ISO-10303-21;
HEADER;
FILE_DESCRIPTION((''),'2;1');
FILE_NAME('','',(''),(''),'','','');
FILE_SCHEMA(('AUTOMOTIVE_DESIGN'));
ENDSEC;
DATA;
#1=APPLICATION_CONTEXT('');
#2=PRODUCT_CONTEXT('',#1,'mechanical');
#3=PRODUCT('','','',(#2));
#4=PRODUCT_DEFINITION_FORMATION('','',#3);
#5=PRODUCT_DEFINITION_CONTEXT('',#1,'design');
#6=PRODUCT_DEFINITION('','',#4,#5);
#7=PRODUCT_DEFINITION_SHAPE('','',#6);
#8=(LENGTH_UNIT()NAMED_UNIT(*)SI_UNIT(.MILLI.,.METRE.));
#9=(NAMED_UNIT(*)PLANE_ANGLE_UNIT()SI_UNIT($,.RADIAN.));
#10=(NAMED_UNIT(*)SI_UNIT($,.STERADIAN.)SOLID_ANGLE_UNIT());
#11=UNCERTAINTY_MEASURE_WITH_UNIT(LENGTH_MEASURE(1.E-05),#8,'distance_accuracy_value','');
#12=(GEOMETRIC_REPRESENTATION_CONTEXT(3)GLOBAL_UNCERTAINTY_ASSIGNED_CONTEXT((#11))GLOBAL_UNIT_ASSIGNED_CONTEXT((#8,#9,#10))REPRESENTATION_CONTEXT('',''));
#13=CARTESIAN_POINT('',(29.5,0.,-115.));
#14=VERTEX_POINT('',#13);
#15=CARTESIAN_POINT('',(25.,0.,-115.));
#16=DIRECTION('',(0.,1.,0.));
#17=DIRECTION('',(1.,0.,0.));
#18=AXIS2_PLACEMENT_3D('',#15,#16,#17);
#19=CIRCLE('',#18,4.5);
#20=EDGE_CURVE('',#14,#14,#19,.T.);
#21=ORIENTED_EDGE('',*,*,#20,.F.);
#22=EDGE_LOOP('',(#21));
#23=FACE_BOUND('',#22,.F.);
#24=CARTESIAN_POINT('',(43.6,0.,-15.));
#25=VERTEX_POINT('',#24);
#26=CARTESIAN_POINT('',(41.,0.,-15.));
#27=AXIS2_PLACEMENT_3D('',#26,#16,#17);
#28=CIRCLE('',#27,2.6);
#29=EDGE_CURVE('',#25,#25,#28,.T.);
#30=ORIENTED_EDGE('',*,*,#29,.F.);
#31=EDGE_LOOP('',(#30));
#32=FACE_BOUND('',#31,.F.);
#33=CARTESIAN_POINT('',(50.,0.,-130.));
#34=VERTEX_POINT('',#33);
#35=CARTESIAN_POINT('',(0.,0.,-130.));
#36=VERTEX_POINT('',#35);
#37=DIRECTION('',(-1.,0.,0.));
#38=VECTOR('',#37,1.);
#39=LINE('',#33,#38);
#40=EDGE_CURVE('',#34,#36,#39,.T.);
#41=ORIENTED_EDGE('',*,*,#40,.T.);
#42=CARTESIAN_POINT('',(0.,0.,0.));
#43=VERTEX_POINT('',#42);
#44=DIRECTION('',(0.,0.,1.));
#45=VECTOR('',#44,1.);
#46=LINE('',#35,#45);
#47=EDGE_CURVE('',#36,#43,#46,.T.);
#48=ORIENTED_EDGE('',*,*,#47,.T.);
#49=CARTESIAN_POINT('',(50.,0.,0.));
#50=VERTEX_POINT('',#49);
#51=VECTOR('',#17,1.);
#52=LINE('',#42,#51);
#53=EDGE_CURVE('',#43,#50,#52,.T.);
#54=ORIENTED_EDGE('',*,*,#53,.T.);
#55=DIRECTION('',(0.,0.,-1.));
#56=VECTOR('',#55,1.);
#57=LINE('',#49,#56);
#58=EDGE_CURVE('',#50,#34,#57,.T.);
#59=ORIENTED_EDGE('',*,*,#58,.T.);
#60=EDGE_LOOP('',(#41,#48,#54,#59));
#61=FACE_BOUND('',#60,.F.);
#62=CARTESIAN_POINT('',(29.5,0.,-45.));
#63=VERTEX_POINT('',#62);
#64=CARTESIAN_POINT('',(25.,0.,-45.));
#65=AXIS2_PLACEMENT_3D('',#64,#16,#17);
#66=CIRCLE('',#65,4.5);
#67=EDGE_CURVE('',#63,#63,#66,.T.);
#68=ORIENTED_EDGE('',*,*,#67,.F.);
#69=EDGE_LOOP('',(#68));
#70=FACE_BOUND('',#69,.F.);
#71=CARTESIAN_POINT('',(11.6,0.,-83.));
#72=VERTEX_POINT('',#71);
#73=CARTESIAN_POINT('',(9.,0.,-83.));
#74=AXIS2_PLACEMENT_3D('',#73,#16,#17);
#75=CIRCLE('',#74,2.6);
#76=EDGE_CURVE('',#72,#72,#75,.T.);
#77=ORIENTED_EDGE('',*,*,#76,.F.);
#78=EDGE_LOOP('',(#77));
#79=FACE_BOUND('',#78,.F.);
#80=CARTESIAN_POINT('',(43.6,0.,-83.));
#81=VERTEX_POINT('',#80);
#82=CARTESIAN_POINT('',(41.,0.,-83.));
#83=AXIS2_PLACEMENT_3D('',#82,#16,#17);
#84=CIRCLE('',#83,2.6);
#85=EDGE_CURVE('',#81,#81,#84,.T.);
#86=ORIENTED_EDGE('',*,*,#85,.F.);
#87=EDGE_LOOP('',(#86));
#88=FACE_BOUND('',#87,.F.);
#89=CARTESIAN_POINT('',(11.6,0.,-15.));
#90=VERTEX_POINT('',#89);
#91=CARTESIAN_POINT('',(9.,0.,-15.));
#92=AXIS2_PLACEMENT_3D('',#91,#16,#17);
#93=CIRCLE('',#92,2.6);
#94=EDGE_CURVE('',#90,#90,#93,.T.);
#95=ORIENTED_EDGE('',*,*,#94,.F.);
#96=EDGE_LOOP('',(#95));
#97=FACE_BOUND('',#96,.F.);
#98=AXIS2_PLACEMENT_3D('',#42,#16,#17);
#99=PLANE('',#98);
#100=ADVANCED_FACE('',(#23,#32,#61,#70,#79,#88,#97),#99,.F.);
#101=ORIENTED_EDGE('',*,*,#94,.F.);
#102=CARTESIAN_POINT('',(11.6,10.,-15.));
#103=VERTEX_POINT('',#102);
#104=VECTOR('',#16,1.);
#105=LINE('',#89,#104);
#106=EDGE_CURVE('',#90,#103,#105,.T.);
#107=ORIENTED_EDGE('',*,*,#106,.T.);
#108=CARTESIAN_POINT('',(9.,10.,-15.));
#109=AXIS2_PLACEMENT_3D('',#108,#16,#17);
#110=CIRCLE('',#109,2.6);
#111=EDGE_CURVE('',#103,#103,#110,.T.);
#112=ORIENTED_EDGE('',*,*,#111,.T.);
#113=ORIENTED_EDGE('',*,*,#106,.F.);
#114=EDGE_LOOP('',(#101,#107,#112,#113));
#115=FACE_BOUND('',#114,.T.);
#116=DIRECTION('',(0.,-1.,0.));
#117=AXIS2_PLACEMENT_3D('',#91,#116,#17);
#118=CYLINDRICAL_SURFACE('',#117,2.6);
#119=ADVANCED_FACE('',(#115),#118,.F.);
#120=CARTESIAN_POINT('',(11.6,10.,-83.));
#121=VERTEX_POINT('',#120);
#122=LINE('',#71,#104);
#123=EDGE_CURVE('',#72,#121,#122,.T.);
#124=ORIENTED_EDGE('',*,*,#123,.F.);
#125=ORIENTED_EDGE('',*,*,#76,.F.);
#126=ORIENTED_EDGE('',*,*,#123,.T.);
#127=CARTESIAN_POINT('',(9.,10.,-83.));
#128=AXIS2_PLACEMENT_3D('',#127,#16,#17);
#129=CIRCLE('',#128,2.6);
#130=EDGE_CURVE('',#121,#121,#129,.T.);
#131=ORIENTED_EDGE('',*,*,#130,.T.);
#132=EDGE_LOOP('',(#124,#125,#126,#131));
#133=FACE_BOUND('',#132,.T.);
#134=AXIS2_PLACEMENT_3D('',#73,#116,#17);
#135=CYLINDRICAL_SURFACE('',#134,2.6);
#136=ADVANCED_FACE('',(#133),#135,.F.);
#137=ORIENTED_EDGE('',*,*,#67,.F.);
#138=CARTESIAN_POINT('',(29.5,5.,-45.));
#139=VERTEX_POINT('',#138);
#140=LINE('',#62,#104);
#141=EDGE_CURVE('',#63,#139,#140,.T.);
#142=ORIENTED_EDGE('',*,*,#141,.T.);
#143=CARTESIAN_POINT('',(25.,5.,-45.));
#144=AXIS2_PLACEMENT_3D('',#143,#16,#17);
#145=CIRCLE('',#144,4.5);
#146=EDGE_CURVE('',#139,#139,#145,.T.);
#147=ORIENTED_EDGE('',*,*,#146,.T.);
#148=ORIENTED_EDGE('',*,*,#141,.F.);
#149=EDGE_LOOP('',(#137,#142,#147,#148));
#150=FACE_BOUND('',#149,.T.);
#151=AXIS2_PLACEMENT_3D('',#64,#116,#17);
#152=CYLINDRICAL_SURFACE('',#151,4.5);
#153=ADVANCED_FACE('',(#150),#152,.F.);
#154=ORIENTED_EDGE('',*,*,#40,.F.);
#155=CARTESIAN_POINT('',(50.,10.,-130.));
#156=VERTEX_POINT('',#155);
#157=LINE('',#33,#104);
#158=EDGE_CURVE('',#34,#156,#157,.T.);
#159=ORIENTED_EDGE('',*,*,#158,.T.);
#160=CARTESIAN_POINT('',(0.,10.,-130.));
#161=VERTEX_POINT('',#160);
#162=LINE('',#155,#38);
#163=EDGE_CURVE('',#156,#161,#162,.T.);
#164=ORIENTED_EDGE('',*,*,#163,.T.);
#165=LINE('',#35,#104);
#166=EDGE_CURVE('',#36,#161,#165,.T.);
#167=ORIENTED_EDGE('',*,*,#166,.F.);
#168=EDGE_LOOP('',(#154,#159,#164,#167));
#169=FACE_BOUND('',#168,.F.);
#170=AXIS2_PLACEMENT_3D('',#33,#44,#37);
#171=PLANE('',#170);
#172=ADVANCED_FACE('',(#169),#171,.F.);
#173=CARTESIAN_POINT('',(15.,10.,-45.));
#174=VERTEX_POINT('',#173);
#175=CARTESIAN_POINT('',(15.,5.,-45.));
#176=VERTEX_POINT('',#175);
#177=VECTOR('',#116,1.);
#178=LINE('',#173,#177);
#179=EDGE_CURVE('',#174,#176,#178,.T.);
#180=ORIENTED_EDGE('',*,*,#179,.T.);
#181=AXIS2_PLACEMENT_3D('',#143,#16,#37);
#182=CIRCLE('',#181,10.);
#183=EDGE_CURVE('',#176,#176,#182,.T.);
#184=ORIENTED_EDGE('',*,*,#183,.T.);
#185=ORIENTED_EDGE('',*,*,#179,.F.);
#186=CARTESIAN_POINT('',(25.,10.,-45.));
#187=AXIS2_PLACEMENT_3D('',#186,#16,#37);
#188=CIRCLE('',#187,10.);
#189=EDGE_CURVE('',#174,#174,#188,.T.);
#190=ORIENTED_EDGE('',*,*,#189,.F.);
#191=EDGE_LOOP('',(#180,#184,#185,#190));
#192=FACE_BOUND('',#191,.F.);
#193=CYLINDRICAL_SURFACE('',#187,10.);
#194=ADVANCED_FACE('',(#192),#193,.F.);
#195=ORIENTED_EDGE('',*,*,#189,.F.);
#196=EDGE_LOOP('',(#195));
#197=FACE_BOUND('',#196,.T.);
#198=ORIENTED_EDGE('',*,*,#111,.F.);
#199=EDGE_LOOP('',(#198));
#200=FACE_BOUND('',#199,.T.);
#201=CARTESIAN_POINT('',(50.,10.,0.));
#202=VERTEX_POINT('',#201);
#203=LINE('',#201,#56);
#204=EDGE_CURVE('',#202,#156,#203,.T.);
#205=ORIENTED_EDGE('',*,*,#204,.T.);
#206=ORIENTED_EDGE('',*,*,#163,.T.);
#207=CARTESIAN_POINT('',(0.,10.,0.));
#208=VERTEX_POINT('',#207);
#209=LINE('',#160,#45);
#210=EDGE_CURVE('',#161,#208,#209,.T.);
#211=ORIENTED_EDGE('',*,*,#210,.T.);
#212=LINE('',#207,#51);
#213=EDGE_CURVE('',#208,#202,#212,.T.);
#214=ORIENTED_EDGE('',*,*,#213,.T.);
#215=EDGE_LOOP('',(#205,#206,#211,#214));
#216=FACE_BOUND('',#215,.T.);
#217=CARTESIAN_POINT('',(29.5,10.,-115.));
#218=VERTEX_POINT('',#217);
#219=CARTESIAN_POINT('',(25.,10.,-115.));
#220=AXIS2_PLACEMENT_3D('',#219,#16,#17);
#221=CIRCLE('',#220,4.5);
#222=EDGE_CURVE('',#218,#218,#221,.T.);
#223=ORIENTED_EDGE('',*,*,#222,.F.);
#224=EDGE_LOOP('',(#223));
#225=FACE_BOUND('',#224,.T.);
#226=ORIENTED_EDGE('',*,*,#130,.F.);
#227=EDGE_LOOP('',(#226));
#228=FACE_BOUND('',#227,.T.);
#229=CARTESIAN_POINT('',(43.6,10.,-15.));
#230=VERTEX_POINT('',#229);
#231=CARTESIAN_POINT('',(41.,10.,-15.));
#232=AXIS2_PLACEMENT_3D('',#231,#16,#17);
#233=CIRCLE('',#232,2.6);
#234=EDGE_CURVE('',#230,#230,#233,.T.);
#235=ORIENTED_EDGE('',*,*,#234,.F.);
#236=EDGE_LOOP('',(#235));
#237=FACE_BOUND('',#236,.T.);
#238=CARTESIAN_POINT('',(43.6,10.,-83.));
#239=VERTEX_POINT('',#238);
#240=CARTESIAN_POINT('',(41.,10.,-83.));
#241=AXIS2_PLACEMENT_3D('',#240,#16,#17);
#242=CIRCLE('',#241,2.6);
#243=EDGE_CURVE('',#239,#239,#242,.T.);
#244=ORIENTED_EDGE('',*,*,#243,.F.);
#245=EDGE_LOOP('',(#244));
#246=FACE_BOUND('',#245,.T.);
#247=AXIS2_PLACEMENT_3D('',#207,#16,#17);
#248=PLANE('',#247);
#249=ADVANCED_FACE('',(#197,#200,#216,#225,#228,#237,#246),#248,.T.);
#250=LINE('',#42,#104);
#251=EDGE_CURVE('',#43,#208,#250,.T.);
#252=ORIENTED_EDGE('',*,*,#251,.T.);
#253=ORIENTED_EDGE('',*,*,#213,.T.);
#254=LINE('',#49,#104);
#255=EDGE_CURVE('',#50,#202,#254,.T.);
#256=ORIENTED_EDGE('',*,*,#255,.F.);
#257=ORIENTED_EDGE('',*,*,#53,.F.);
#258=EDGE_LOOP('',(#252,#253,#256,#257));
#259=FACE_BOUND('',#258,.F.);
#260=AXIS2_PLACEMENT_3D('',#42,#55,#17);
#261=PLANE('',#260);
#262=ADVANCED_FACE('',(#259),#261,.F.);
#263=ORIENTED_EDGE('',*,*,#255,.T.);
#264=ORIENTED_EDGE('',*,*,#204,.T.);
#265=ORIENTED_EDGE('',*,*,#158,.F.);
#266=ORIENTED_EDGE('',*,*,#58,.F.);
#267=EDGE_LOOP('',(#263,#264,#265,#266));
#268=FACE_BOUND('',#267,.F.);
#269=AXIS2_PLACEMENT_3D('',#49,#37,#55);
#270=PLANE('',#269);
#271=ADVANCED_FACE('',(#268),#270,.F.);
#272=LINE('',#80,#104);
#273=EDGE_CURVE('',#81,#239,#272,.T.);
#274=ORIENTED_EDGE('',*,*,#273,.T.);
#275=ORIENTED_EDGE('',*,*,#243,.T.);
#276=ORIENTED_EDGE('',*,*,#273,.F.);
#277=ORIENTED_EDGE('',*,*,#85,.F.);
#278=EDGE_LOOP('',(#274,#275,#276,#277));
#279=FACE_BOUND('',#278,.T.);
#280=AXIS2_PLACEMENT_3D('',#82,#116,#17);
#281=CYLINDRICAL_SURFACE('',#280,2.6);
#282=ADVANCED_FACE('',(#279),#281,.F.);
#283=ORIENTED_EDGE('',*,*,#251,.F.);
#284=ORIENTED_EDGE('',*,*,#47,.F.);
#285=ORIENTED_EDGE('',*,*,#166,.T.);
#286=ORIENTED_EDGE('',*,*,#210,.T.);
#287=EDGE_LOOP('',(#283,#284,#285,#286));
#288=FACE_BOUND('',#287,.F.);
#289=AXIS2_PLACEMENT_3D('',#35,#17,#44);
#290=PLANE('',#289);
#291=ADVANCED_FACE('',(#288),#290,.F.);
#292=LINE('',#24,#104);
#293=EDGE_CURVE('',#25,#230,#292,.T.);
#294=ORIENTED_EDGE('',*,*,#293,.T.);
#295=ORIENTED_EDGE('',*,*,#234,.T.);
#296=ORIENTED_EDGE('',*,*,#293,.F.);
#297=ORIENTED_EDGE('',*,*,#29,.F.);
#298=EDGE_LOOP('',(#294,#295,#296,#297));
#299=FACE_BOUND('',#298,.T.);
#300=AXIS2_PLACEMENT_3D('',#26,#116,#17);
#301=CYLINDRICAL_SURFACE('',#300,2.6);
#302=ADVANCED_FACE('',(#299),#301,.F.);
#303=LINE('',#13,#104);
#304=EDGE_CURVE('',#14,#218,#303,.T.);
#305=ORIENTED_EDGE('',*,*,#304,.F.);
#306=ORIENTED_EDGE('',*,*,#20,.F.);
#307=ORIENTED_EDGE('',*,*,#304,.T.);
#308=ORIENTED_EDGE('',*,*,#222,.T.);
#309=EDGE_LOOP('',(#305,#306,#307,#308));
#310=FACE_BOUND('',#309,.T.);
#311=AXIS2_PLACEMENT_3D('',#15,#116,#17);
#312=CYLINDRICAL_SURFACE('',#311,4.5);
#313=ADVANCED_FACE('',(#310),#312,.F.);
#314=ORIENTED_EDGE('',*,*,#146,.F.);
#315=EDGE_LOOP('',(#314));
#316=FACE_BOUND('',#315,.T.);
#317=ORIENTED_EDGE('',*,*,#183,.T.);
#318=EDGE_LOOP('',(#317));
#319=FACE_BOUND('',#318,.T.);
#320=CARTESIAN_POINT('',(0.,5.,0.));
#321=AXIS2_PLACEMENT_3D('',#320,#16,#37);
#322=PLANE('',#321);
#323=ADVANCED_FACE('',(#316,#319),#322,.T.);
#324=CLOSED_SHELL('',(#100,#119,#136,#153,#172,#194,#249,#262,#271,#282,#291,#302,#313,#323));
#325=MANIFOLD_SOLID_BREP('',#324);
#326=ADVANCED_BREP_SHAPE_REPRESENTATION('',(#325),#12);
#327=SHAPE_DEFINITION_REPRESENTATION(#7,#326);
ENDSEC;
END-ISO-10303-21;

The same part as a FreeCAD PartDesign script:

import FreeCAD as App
import Part
import Sketcher
from FreeCAD import Vector

doc = App.newDocument("Part")
params = doc.addObject("Spreadsheet::Sheet", "Params")
for row, (alias, value) in enumerate([
    ("sketch1_diameter", "9 mm"),
    ("sketch1_diameter2", "5.2 mm"),
    ("sketch1_width", "50 mm"),
    ("sketch1_height", "130 mm"),
    ("pad1_length", "10 mm"),
    ("sketch2_diameter", "20 mm"),
    ("sketch2_diameter2", "9 mm"),
    ("pocket1_length", "5 mm"),
], start=1):
    params.set(f"A{row}", alias)
    params.set(f"B{row}", "=" + value)
    params.setAlias(f"B{row}", alias)

body = doc.addObject("PartDesign::Body", "Body")

sketch1 = body.newObject("Sketcher::SketchObject", "Sketch")
sketch1.AttachmentSupport = (doc.getObject("XZ_Plane"), [""])
sketch1.MapMode = "FlatFace"
sketch1.addGeometry([
    Part.LineSegment(Vector(0, -130, 0), Vector(0, 0, 0)),
    Part.LineSegment(Vector(0, 0, 0), Vector(50, 0, 0)),
    Part.LineSegment(Vector(50, 0, 0), Vector(50, -130, 0)),
    Part.LineSegment(Vector(50, -130, 0), Vector(0, -130, 0)),
    Part.Circle(Vector(9, -15, 0), Vector(0, 0, 1), 2.6),
    Part.Circle(Vector(41, -15, 0), Vector(0, 0, 1), 2.6),
    Part.Circle(Vector(25, -45, 0), Vector(0, 0, 1), 4.5),
    Part.Circle(Vector(9, -83, 0), Vector(0, 0, 1), 2.6),
    Part.Circle(Vector(41, -83, 0), Vector(0, 0, 1), 2.6),
    Part.Circle(Vector(25, -115, 0), Vector(0, 0, 1), 4.5),
], False)
sketch1.addConstraint([
    Sketcher.Constraint("Coincident", 0, 2, 1, 1),
    Sketcher.Constraint("Coincident", 1, 2, 2, 1),
    Sketcher.Constraint("Coincident", 2, 2, 3, 1),
    Sketcher.Constraint("Coincident", 3, 2, 0, 1),
    Sketcher.Constraint("Vertical", 0),
    Sketcher.Constraint("Horizontal", 1),
    Sketcher.Constraint("Vertical", 2),
    Sketcher.Constraint("Horizontal", 3),
    Sketcher.Constraint("Coincident", 0, 2, -1, 1),
    Sketcher.Constraint("Equal", 4, 5),
    Sketcher.Constraint("Equal", 5, 7),
    Sketcher.Constraint("Equal", 7, 8),
    Sketcher.Constraint("Equal", 6, 9),
    Sketcher.Constraint("Horizontal", 4, 3, 5, 3),
    Sketcher.Constraint("Horizontal", 7, 3, 8, 3),
    Sketcher.Constraint("Vertical", 4, 3, 7, 3),
    Sketcher.Constraint("Vertical", 5, 3, 8, 3),
    Sketcher.Constraint("Vertical", 6, 3, 9, 3),
    Sketcher.Constraint("Diameter", 6, 9.0),
    Sketcher.Constraint("Diameter", 4, 5.2),
    Sketcher.Constraint("DistanceX", 1, 1, 1, 2, 50.0),
    Sketcher.Constraint("DistanceY", 0, 1, 0, 2, 130.0),
    Sketcher.Constraint("DistanceX", -1, 1, 4, 3, 9.0),
    Sketcher.Constraint("DistanceY", 4, 3, -1, 1, 15.0),
    Sketcher.Constraint("DistanceX", -1, 1, 6, 3, 25.0),
    Sketcher.Constraint("DistanceX", 4, 3, 5, 3, 32.0),
    Sketcher.Constraint("DistanceY", 6, 3, 4, 3, 30.0),
    Sketcher.Constraint("DistanceY", 9, 3, 7, 3, 32.0),
    Sketcher.Constraint("DistanceY", 2, 2, 9, 3, 15.0),
])
sketch1.setExpression("Constraints[18]", "Params.sketch1_diameter")
sketch1.setExpression("Constraints[19]", "Params.sketch1_diameter2")
sketch1.setExpression("Constraints[20]", "Params.sketch1_width")
sketch1.setExpression("Constraints[21]", "Params.sketch1_height")
pad1 = body.newObject("PartDesign::Pad", "Pad")
pad1.Profile = sketch1
pad1.setExpression("Length", "Params.pad1_length")
pad1.Reversed = True

sketch2 = body.newObject("Sketcher::SketchObject", "Sketch001")
sketch2.AttachmentSupport = (doc.getObject("XZ_Plane"), [""])
sketch2.MapMode = "FlatFace"
sketch2.AttachmentOffset = App.Placement(Vector(0, 0, -10), App.Rotation())
sketch2.addGeometry([
    Part.Circle(Vector(25, -45, 0), Vector(0, 0, 1), 10),
    Part.Circle(Vector(25, -45, 0), Vector(0, 0, 1), 4.5),
], False)
sketch2.addConstraint([
    Sketcher.Constraint("Coincident", 1, 3, 0, 3),
    Sketcher.Constraint("Diameter", 0, 20.0),
    Sketcher.Constraint("Diameter", 1, 9.0),
    Sketcher.Constraint("DistanceX", -1, 1, 0, 3, 25.0),
    Sketcher.Constraint("DistanceY", 0, 3, -1, 1, 45.0),
])
sketch2.setExpression("Constraints[1]", "Params.sketch2_diameter")
sketch2.setExpression("Constraints[2]", "Params.sketch2_diameter2")
pocket1 = body.newObject("PartDesign::Pocket", "Pocket")
pocket1.Profile = sketch2
pocket1.setExpression("Length", "Params.pocket1_length")
pocket1.Reversed = True

doc.recompute()
